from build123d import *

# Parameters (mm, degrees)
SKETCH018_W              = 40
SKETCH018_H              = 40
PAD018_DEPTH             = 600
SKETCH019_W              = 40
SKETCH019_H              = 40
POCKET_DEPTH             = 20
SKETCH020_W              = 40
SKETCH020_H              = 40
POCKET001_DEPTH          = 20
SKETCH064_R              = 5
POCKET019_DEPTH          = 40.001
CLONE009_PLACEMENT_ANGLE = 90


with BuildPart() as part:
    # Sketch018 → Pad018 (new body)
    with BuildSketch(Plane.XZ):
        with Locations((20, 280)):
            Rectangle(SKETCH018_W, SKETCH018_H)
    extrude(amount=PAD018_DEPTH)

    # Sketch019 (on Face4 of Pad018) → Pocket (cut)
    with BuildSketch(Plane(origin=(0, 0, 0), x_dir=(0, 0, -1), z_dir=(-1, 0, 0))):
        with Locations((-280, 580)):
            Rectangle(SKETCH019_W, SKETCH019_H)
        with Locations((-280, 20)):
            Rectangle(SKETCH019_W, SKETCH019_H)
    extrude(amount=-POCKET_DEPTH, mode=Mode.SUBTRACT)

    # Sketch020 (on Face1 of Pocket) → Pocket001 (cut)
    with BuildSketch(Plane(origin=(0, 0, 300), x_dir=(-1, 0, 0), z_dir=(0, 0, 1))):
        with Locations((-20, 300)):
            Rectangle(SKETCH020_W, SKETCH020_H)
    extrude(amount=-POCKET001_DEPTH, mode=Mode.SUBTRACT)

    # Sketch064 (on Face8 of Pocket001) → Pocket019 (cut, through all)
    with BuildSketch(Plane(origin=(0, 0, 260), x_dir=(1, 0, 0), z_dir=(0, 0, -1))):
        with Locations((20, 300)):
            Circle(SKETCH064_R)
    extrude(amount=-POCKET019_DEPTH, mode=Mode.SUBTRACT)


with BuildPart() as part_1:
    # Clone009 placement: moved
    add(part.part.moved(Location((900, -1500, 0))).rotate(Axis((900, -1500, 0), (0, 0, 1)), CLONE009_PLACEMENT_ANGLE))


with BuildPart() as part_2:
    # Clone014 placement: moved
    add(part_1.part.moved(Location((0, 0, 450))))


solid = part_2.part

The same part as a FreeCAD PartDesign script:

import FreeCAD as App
import Part
import Sketcher
from FreeCAD import Vector
Q = App.Units.Quantity

doc = App.newDocument("Part")
body = doc.addObject("PartDesign::Body", "Body")

# Sketch on XZ plane
sketch1 = body.newObject("Sketcher::SketchObject", "Sketch")
sketch1.AttachmentSupport = (doc.getObject("XZ_Plane"), [""])
sketch1.MapMode = "FlatFace"
sketch1.addGeometry([
    Part.LineSegment(Vector(0, 300, 0), Vector(0, 260, 0)),
    Part.LineSegment(Vector(0, 260, 0), Vector(40, 260, 0)),
    Part.LineSegment(Vector(40, 260, 0), Vector(40, 300, 0)),
    Part.LineSegment(Vector(40, 300, 0), Vector(0, 300, 0)),
], False)
sketch1.addConstraint([
    Sketcher.Constraint("Coincident", 0, 2, 1, 1),
    Sketcher.Constraint("Coincident", 1, 2, 2, 1),
    Sketcher.Constraint("Coincident", 2, 2, 3, 1),
    Sketcher.Constraint("Coincident", 3, 2, 0, 1),
    Sketcher.Constraint("Vertical", 0),
    Sketcher.Constraint("Horizontal", 1),
    Sketcher.Constraint("Vertical", 2),
    Sketcher.Constraint("Horizontal", 3),
    Sketcher.Constraint("PointOnObject", 0, 2, -2),
    Sketcher.Constraint("Equal", 3, 0),
    Sketcher.Constraint("DistanceX", 1, 1, 1, 2, Q("40 mm")),
    Sketcher.Constraint("DistanceY", -1, 1, 0, 2, Q("260 mm")),
])
pad1 = body.newObject("PartDesign::Pad", "Pad")
pad1.Profile = sketch1
pad1.Length = 600

# Sketch on YZ plane
sketch2 = body.newObject("Sketcher::SketchObject", "Sketch001")
sketch2.AttachmentSupport = (doc.getObject("YZ_Plane"), [""])
sketch2.MapMode = "FlatFace"
sketch2.addGeometry([
    Part.LineSegment(Vector(-600, 300, 0), Vector(-560, 300, 0)),  # 0
    Part.LineSegment(Vector(-560, 300, 0), Vector(-560, 260, 0)),  # 1
    Part.LineSegment(Vector(-560, 260, 0), Vector(-600, 260, 0)),  # 2
    Part.LineSegment(Vector(-600, 260, 0), Vector(-600, 300, 0)),  # 3
    Part.LineSegment(Vector(-40, 300, 0), Vector(0, 300, 0)),  # 4
    Part.LineSegment(Vector(0, 300, 0), Vector(0, 260, 0)),  # 5
    Part.LineSegment(Vector(0, 260, 0), Vector(-40, 260, 0)),  # 6
    Part.LineSegment(Vector(-40, 260, 0), Vector(-40, 300, 0)),  # 7
], False)
sketch2.addConstraint([
    Sketcher.Constraint("Coincident", 0, 2, 1, 1),
    Sketcher.Constraint("Coincident", 1, 2, 2, 1),
    Sketcher.Constraint("Coincident", 2, 2, 3, 1),
    Sketcher.Constraint("Coincident", 3, 2, 0, 1),
    Sketcher.Constraint("Coincident", 4, 2, 5, 1),
    Sketcher.Constraint("Coincident", 5, 2, 6, 1),
    Sketcher.Constraint("Coincident", 6, 2, 7, 1),
    Sketcher.Constraint("Coincident", 7, 2, 4, 1),
    Sketcher.Constraint("Horizontal", 0),
    Sketcher.Constraint("Vertical", 1),
    Sketcher.Constraint("Horizontal", 2),
    Sketcher.Constraint("Vertical", 3),
    Sketcher.Constraint("Horizontal", 4),
    Sketcher.Constraint("Vertical", 5),
    Sketcher.Constraint("Horizontal", 6),
    Sketcher.Constraint("Vertical", 7),
    Sketcher.Constraint("PointOnObject", 4, 2, -2),
    Sketcher.Constraint("Horizontal", 3, 2, 4, 2),
    Sketcher.Constraint("Horizontal", 2, 2, 5, 2),
    Sketcher.Constraint("Equal", 2, 4),
    Sketcher.Constraint("Equal", 6, 1),
    Sketcher.Constraint("DistanceX", 0, 1, 0, 2, Q("40 mm")),
    Sketcher.Constraint("DistanceX", 0, 2, -1, 1, Q("560 mm")),
    Sketcher.Constraint("DistanceY", -1, 1, 0, 2, Q("300 mm")),
])
pocket1 = body.newObject("PartDesign::Pocket", "Pocket")
pocket1.Profile = sketch2
pocket1.Length = 20
pocket1.Reversed = True

# Sketch on XY plane
sketch3 = body.newObject("Sketcher::SketchObject", "Sketch002")
sketch3.AttachmentSupport = (doc.getObject("XY_Plane"), [""])
sketch3.MapMode = "FlatFace"
sketch3.AttachmentOffset = App.Placement(Vector(0, 0, 300), App.Rotation())
sketch3.addGeometry([
    Part.LineSegment(Vector(40, -320, 0), Vector(40, -280, 0)),
    Part.LineSegment(Vector(40, -280, 0), Vector(0, -280, 0)),
    Part.LineSegment(Vector(0, -280, 0), Vector(0, -320, 0)),
    Part.LineSegment(Vector(0, -320, 0), Vector(40, -320, 0)),
], False)
sketch3.addConstraint([
    Sketcher.Constraint("Coincident", 0, 2, 1, 1),
    Sketcher.Constraint("Coincident", 1, 2, 2, 1),
    Sketcher.Constraint("Coincident", 2, 2, 3, 1),
    Sketcher.Constraint("Coincident", 3, 2, 0, 1),
    Sketcher.Constraint("Vertical", 0),
    Sketcher.Constraint("Horizontal", 1),
    Sketcher.Constraint("Vertical", 2),
    Sketcher.Constraint("Horizontal", 3),
    Sketcher.Constraint("PointOnObject", 1, 2, -2),
    Sketcher.Constraint("Equal", 3, 0),
    Sketcher.Constraint("DistanceX", 1, 2, 1, 1, Q("40 mm")),
    Sketcher.Constraint("DistanceY", 0, 2, -1, 1, Q("280 mm")),
])
pocket2 = body.newObject("PartDesign::Pocket", "Pocket001")
pocket2.Profile = sketch3
pocket2.Length = 20

# Sketch on XY plane
sketch4 = body.newObject("Sketcher::SketchObject", "Sketch003")
sketch4.AttachmentSupport = (doc.getObject("XY_Plane"), [""])
sketch4.MapMode = "FlatFace"
sketch4.AttachmentOffset = App.Placement(Vector(0, 0, 260), App.Rotation())
sketch4.addGeometry(Part.Circle(Vector(20, -300, 0), Vector(0, 0, 1), 5), False)
sketch4.addConstraint([
    Sketcher.Constraint("Diameter", 0, Q("10 mm")),
    Sketcher.Constraint("DistanceX", -1, 1, 0, 3, Q("20 mm")),
    Sketcher.Constraint("DistanceY", 0, 3, -1, 1, Q("300 mm")),
])
pocket3 = body.newObject("PartDesign::Pocket", "Pocket002")
pocket3.Profile = sketch4
pocket3.Type = "ThroughAll"
pocket3.Reversed = True
body2 = doc.addObject("PartDesign::Body", "Body001")
doc.recompute()

body.Placement = App.Placement(Vector(900, -1500, 0), App.Rotation(Vector(0, 0, 1), 90))
boolean = body2.newObject("PartDesign::Boolean", "Boolean")
boolean.Type = "Fuse"
boolean.addObjects([body])
body3 = doc.addObject("PartDesign::Body", "Body002")
doc.recompute()

body2.Placement = App.Placement(Vector(0, 0, 450), App.Rotation(Vector(0, 0, 1), 0))
boolean2 = body3.newObject("PartDesign::Boolean", "Boolean001")
boolean2.Type = "Fuse"
boolean2.addObjects([body2])

doc.recompute()
